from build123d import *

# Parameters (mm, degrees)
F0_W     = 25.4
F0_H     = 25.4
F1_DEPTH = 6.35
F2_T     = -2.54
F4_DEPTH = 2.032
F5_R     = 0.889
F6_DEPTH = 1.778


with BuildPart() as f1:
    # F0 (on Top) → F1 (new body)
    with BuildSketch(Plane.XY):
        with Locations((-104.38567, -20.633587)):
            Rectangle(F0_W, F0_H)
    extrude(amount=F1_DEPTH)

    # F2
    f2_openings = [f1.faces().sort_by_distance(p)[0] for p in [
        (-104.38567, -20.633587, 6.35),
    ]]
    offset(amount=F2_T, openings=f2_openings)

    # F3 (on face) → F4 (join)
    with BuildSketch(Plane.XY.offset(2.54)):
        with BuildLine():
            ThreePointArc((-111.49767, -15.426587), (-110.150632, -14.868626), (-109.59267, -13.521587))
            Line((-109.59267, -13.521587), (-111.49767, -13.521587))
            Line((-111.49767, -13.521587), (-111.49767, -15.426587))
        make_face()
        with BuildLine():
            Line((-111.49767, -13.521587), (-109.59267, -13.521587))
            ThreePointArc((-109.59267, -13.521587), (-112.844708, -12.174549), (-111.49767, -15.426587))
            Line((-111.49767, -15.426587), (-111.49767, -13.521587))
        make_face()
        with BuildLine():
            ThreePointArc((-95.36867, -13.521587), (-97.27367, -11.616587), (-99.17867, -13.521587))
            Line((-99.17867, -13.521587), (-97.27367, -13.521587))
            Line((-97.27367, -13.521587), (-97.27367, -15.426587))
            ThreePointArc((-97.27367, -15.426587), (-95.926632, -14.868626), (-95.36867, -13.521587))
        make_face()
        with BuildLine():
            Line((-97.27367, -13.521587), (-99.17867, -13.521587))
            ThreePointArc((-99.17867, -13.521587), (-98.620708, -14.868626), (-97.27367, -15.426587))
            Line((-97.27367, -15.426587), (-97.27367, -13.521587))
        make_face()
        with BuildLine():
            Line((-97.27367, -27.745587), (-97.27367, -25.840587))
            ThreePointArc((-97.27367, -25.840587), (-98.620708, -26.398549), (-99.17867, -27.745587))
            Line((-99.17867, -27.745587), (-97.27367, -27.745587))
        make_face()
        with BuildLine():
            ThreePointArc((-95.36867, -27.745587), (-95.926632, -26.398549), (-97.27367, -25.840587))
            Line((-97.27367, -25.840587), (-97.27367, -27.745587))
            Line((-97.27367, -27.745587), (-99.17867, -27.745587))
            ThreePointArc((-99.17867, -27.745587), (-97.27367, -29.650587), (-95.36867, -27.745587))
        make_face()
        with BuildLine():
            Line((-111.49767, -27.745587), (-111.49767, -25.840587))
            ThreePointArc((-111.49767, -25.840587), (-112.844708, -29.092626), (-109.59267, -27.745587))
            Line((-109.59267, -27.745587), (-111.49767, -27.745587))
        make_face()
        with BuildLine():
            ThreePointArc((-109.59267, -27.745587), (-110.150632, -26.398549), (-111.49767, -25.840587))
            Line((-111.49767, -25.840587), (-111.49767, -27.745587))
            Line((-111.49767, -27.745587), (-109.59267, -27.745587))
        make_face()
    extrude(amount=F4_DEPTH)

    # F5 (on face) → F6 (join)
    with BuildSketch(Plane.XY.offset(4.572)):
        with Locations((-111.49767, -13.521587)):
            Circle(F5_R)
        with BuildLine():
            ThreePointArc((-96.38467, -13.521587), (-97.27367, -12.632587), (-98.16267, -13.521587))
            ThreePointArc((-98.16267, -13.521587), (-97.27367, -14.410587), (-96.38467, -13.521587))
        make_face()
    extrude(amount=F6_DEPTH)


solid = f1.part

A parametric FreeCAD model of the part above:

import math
import FreeCAD as App
import Part
import Sketcher

V = App.Vector
Q = App.Units.Quantity


def faces_at(feature, points):
    """Names of the faces that lie closest to the given points."""
    faces = feature.Shape.Faces
    near = lambda p: min(range(len(faces)), key=lambda i: faces[i].distToShape(Part.Vertex(*p))[0])
    return sorted({f"Face{near(p) + 1}" for p in points})


def add_polygon(sketch, points):
    """Adds a closed chain of lines whose ends are joined by coincident constraints."""
    first, n = sketch.GeometryCount, len(points)
    for a, b in zip(points, points[1:] + points[:1]):
        sketch.addGeometry(Part.LineSegment(App.Vector(*a, 0), App.Vector(*b, 0)), False)
    for i in range(n):
        sketch.addConstraint(Sketcher.Constraint("Coincident", first + i, 2, first + (i + 1) % n, 1))

doc = App.newDocument("Part")
params = doc.addObject("Spreadsheet::Sheet", "Params")
for row, (alias, value) in enumerate([
    ("sketch1_width", "1 in"),
    ("pad1_length", "0.25 in"),
    ("thickness_wall", "0.1 in"),
    ("sketch2_radius", "0.075 in"),
    ("pad2_length", "0.08 in"),
    ("sketch3_diameter", "0.07 in"),
    ("pad3_length", "0.07 in"),
], start=1):
    params.set(f"A{row}", alias)
    params.set(f"B{row}", "=" + value)
    params.setAlias(f"B{row}", alias)

body = doc.addObject("PartDesign::Body", "Body")

# Sketch on XY plane
sketch1 = body.newObject("Sketcher::SketchObject", "Sketch")
sketch1.AttachmentSupport = (doc.getObject("XY_Plane"), [""])
sketch1.MapMode = "FlatFace"
add_polygon(sketch1, [(-117.08567, -7.933587), (-117.08567, -33.333587), (-91.68567, -33.333587), (-91.68567, -7.933587)])  # lines 0-3
sketch1.addConstraint([
    Sketcher.Constraint("Vertical", 0),
    Sketcher.Constraint("Horizontal", 1),
    Sketcher.Constraint("Vertical", 2),
    Sketcher.Constraint("Horizontal", 3),
    Sketcher.Constraint("Equal", 3, 0),
    Sketcher.Constraint("DistanceX", 1, 1, 1, 2, Q("1 in")),
    Sketcher.Constraint("DistanceX", 0, 2, -1, 1, 117.08567),
    Sketcher.Constraint("DistanceY", 0, 2, -1, 1, 33.333587),
])
sketch1.setExpression("Constraints[9]", "Params.sketch1_width")
pad1 = body.newObject("PartDesign::Pad", "Pad")
pad1.Profile = sketch1
pad1.setExpression("Length", "Params.pad1_length")
doc.recompute()

thickness = body.newObject("PartDesign::Thickness", "Thickness")
thickness.Base = (pad1, faces_at(pad1, [(-104.386, -20.634, 6.35)]))
thickness.setExpression("Value", "Params.thickness_wall")
thickness.Reversed = True
thickness.Join = "Arc"

# Sketch on XY plane
sketch2 = body.newObject("Sketcher::SketchObject", "Sketch001")
sketch2.AttachmentSupport = (doc.getObject("XY_Plane"), [""])
sketch2.MapMode = "FlatFace"
sketch2.AttachmentOffset = App.Placement(V(0, 0, 0.1 * 25.4), App.Rotation())
sketch2.addGeometry([
    Part.ArcOfCircle(Part.Circle(V(-111.49767, -13.521587, 0), V(0, 0, 1), 1.905), math.radians(-90.000008), math.radians(0.000008)),  # 0
    Part.ArcOfCircle(Part.Circle(V(-111.49767, -13.521587, 0), V(0, 0, 1), 1.905), math.radians(0.000007), math.radians(269.999993)),  # 1
    Part.ArcOfCircle(Part.Circle(V(-97.27367, -13.521587, 0), V(0, 0, 1), 1.905), math.radians(0), math.radians(180)),  # 2
    Part.ArcOfCircle(Part.Circle(V(-97.27367, -13.521587, 0), V(0, 0, 1), 1.905), math.radians(179.999992), math.radians(270.000008)),  # 3
    Part.ArcOfCircle(Part.Circle(V(-97.27367, -13.521587, 0), V(0, 0, 1), 1.905), math.radians(-90.000008), math.radians(0.000008)),  # 4
    Part.ArcOfCircle(Part.Circle(V(-97.273669, -27.745588, 0), V(0, 0, 1), 1.905001), math.radians(90.000043), math.radians(179.999957)),  # 5
    Part.ArcOfCircle(Part.Circle(V(-97.27367, -27.745587, 0), V(0, 0, 1), 1.905), math.radians(180), math.radians(360)),  # 6
    Part.ArcOfCircle(Part.Circle(V(-97.273671, -27.745588, 0), V(0, 0, 1), 1.905001), math.radians(0.000043), math.radians(89.999957)),  # 7
    Part.ArcOfCircle(Part.Circle(V(-111.49767, -27.745587, 0), V(0, 0, 1), 1.905), math.radians(89.999999), math.radians(360.000001)),  # 8
    Part.ArcOfCircle(Part.Circle(V(-111.497671, -27.745588, 0), V(0, 0, 1), 1.905001), math.radians(0.000043), math.radians(89.999957)),  # 9
], False)
sketch2.addConstraint([
    Sketcher.Constraint("Tangent", 0, 1, 1, 2),
    Sketcher.Constraint("Coincident", 1, 1, 0, 2),
    Sketcher.Constraint("Tangent", 2, 2, 3, 1),
    Sketcher.Constraint("Tangent", 3, 2, 4, 1),
    Sketcher.Constraint("Tangent", 4, 2, 2, 1),
    Sketcher.Constraint("Tangent", 5, 2, 6, 1),
    Sketcher.Constraint("Tangent", 6, 2, 7, 1),
    Sketcher.Constraint("Tangent", 7, 2, 5, 1),
    Sketcher.Constraint("Tangent", 8, 1, 9, 2),
    Sketcher.Constraint("Coincident", 9, 1, 8, 2),
    Sketcher.Constraint("Equal", 1, 2),
    Sketcher.Constraint("Equal", 4, 5),
    Sketcher.Constraint("Equal", 7, 8),
    Sketcher.Constraint("Horizontal", 1, 3, 2, 3),
    Sketcher.Constraint("Horizontal", 7, 3, 8, 3),
    Sketcher.Constraint("Horizontal", 4, 3, 1, 1),
    Sketcher.Constraint("Horizontal", 1, 1, 2, 2),
    Sketcher.Constraint("Horizontal", 2, 2, 4, 2),
    Sketcher.Constraint("Horizontal", 9, 3, 5, 2),
    Sketcher.Constraint("Horizontal", 5, 2, 6, 2),
    Sketcher.Constraint("Horizontal", 6, 2, 9, 1),
    Sketcher.Constraint("Vertical", 4, 3, 5, 3),
    Sketcher.Constraint("Vertical", 1, 3, 8, 3),
    Sketcher.Constraint("Vertical", 9, 3, 0, 1),
    Sketcher.Constraint("Vertical", 7, 3, 3, 2),
    Sketcher.Constraint("Vertical", 3, 2, 7, 2),
    Sketcher.Constraint("Vertical", 0, 1, 8, 1),
    Sketcher.Constraint("Radius", 0, Q("0.075 in")),
    Sketcher.Constraint("DistanceX", 0, 3, 2, 3, Q("0.56 in")),
    Sketcher.Constraint("DistanceY", 5, 3, 4, 3, Q("0.56 in")),
    Sketcher.Constraint("DistanceX", 0, 3, -1, 1, 111.49767),
    Sketcher.Constraint("DistanceY", 5, 3, -1, 1, 27.745588),
])
sketch2.setExpression("Constraints[27]", "Params.sketch2_radius")
pad2 = body.newObject("PartDesign::Pad", "Pad001")
pad2.Profile = sketch2
pad2.setExpression("Length", "Params.pad2_length")

# Sketch on XY plane
sketch3 = body.newObject("Sketcher::SketchObject", "Sketch002")
sketch3.AttachmentSupport = (doc.getObject("XY_Plane"), [""])
sketch3.MapMode = "FlatFace"
sketch3.AttachmentOffset = App.Placement(V(0, 0, 0.18 * 25.4), App.Rotation())
sketch3.addGeometry([
    Part.Circle(V(-111.49767, -13.521587, 0), V(0, 0, 1), 0.889),
    Part.Circle(V(-97.27367, -13.521587, 0), V(0, 0, 1), 0.889),
], False)
sketch3.addConstraint([
    Sketcher.Constraint("Equal", 0, 1),
    Sketcher.Constraint("Horizontal", 0, 3, 1, 3),
    Sketcher.Constraint("Diameter", 0, Q("0.07 in")),
    Sketcher.Constraint("DistanceX", 0, 3, 1, 3, Q("0.56 in")),
    Sketcher.Constraint("DistanceX", 0, 3, -1, 1, 111.49767),
    Sketcher.Constraint("DistanceY", 0, 3, -1, 1, 13.521587),
])
sketch3.setExpression("Constraints[2]", "Params.sketch3_diameter")
pad3 = body.newObject("PartDesign::Pad", "Pad002")
pad3.Profile = sketch3
pad3.setExpression("Length", "Params.pad3_length")

doc.recompute()
